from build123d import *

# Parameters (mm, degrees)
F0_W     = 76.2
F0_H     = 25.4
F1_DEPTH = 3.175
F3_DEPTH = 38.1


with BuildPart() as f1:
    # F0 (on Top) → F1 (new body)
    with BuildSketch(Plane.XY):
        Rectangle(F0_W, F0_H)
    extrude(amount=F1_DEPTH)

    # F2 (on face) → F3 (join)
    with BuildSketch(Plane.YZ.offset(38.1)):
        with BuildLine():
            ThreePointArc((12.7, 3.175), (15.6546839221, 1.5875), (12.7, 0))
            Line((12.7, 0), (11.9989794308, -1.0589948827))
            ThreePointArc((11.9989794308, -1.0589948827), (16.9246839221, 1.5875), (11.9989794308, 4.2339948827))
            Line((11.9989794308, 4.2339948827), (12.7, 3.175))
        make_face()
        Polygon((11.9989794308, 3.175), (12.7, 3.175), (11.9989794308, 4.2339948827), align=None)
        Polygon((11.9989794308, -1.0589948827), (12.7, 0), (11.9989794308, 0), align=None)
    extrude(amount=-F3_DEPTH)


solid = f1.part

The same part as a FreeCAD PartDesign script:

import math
import FreeCAD as App
import Part
import Sketcher
from FreeCAD import Vector
Q = App.Units.Quantity

doc = App.newDocument("Part")
body = doc.addObject("PartDesign::Body", "Body")

sketch1 = doc.addObject("Sketcher::SketchObject", "Sketch")
body.addObject(sketch1)
sketch1.AttachmentSupport = (doc.XY_Plane, [""])
sketch1.MapMode = "FlatFace"
sketch1.addGeometry([
    Part.LineSegment(Vector(-38, 13, 0), Vector(-38, -13, 0)),
    Part.LineSegment(Vector(-38, -13, 0), Vector(38, -13, 0)),
    Part.LineSegment(Vector(38, -13, 0), Vector(38, 13, 0)),
    Part.LineSegment(Vector(38, 13, 0), Vector(-38, 13, 0)),
], False)
sketch1.addConstraint([
    Sketcher.Constraint("Coincident", 0, 2, 1, 1),
    Sketcher.Constraint("Coincident", 1, 2, 2, 1),
    Sketcher.Constraint("Coincident", 2, 2, 3, 1),
    Sketcher.Constraint("Coincident", 3, 2, 0, 1),
    Sketcher.Constraint("Vertical", 0),
    Sketcher.Constraint("Horizontal", 1),
    Sketcher.Constraint("Vertical", 2),
    Sketcher.Constraint("Horizontal", 3),
    Sketcher.Constraint("Symmetric", 0, 2, 2, 2, -1, 1),
    Sketcher.Constraint("DistanceX", 1, 1, 1, 2, Q("3 in")),
    Sketcher.Constraint("DistanceY", 0, 2, 0, 1, Q("1 in")),
])
pad1 = doc.addObject("PartDesign::Pad", "Pad")
body.addObject(pad1)
pad1.Profile = sketch1
pad1.Length = Q("0.125 in")

sketch2 = doc.addObject("Sketcher::SketchObject", "Sketch001")
body.addObject(sketch2)
sketch2.AttachmentSupport = (doc.YZ_Plane, [""])
sketch2.MapMode = "FlatFace"
sketch2.AttachmentOffset = App.Placement(Vector(0, 0, 1.5 * 25.4), App.Rotation())
sketch2.addGeometry([
    Part.ArcOfCircle(Part.Circle(Vector(13.8, 1.6, 0), Vector(0, 0, 1), 1.9), math.radians(-124), math.radians(124)),
    Part.LineSegment(Vector(12.7, 0, 0), Vector(12, 0, 0)),
    Part.LineSegment(Vector(12, 0, 0), Vector(12, -1.1, 0)),
    Part.ArcOfCircle(Part.Circle(Vector(13.8, 1.6, 0), Vector(0, 0, 1), 3.2), math.radians(-124), math.radians(124)),
    Part.LineSegment(Vector(12, 4.2, 0), Vector(12, 3.2, 0)),
    Part.LineSegment(Vector(12, 3.2, 0), Vector(12.7, 3.2, 0)),
], False)
sketch2.addConstraint([
    Sketcher.Constraint("Coincident", 0, 1, 1, 1),
    Sketcher.Constraint("Coincident", 1, 2, 2, 1),
    Sketcher.Constraint("Coincident", 2, 2, 3, 1),
    Sketcher.Constraint("Coincident", 3, 2, 4, 1),
    Sketcher.Constraint("Coincident", 4, 2, 5, 1),
    Sketcher.Constraint("Coincident", 5, 2, 0, 2),
    Sketcher.Constraint("Horizontal", 1),
    Sketcher.Constraint("Vertical", 2),
    Sketcher.Constraint("Vertical", 4),
    Sketcher.Constraint("Horizontal", 5),
    Sketcher.Constraint("Coincident", 3, 3, 0, 3),
    Sketcher.Constraint("PointOnObject", 0, 1, -1),
    Sketcher.Constraint("Vertical", 2, 2, 3, 2),
    Sketcher.Constraint("Vertical", 0, 1, 5, 2),
    Sketcher.Constraint("DistanceX", -1, 1, 0, 1, Q("0.5 in")),
    Sketcher.Constraint("DistanceY", -1, 1, 0, 3, Q("0.0625 in")),
    Sketcher.Constraint("Radius", 0, Q("1.90381 mm")),
    Sketcher.Constraint("Radius", 3, Q("3.17381 mm")),
    Sketcher.Constraint("DistanceX", 1, 2, 1, 1, Q("0.701021 mm")),
])
pad2 = doc.addObject("PartDesign::Pad", "Pad001")
body.addObject(pad2)
pad2.Profile = sketch2
pad2.Length = Q("1.5 in")
pad2.Reversed = True

doc.recompute()
